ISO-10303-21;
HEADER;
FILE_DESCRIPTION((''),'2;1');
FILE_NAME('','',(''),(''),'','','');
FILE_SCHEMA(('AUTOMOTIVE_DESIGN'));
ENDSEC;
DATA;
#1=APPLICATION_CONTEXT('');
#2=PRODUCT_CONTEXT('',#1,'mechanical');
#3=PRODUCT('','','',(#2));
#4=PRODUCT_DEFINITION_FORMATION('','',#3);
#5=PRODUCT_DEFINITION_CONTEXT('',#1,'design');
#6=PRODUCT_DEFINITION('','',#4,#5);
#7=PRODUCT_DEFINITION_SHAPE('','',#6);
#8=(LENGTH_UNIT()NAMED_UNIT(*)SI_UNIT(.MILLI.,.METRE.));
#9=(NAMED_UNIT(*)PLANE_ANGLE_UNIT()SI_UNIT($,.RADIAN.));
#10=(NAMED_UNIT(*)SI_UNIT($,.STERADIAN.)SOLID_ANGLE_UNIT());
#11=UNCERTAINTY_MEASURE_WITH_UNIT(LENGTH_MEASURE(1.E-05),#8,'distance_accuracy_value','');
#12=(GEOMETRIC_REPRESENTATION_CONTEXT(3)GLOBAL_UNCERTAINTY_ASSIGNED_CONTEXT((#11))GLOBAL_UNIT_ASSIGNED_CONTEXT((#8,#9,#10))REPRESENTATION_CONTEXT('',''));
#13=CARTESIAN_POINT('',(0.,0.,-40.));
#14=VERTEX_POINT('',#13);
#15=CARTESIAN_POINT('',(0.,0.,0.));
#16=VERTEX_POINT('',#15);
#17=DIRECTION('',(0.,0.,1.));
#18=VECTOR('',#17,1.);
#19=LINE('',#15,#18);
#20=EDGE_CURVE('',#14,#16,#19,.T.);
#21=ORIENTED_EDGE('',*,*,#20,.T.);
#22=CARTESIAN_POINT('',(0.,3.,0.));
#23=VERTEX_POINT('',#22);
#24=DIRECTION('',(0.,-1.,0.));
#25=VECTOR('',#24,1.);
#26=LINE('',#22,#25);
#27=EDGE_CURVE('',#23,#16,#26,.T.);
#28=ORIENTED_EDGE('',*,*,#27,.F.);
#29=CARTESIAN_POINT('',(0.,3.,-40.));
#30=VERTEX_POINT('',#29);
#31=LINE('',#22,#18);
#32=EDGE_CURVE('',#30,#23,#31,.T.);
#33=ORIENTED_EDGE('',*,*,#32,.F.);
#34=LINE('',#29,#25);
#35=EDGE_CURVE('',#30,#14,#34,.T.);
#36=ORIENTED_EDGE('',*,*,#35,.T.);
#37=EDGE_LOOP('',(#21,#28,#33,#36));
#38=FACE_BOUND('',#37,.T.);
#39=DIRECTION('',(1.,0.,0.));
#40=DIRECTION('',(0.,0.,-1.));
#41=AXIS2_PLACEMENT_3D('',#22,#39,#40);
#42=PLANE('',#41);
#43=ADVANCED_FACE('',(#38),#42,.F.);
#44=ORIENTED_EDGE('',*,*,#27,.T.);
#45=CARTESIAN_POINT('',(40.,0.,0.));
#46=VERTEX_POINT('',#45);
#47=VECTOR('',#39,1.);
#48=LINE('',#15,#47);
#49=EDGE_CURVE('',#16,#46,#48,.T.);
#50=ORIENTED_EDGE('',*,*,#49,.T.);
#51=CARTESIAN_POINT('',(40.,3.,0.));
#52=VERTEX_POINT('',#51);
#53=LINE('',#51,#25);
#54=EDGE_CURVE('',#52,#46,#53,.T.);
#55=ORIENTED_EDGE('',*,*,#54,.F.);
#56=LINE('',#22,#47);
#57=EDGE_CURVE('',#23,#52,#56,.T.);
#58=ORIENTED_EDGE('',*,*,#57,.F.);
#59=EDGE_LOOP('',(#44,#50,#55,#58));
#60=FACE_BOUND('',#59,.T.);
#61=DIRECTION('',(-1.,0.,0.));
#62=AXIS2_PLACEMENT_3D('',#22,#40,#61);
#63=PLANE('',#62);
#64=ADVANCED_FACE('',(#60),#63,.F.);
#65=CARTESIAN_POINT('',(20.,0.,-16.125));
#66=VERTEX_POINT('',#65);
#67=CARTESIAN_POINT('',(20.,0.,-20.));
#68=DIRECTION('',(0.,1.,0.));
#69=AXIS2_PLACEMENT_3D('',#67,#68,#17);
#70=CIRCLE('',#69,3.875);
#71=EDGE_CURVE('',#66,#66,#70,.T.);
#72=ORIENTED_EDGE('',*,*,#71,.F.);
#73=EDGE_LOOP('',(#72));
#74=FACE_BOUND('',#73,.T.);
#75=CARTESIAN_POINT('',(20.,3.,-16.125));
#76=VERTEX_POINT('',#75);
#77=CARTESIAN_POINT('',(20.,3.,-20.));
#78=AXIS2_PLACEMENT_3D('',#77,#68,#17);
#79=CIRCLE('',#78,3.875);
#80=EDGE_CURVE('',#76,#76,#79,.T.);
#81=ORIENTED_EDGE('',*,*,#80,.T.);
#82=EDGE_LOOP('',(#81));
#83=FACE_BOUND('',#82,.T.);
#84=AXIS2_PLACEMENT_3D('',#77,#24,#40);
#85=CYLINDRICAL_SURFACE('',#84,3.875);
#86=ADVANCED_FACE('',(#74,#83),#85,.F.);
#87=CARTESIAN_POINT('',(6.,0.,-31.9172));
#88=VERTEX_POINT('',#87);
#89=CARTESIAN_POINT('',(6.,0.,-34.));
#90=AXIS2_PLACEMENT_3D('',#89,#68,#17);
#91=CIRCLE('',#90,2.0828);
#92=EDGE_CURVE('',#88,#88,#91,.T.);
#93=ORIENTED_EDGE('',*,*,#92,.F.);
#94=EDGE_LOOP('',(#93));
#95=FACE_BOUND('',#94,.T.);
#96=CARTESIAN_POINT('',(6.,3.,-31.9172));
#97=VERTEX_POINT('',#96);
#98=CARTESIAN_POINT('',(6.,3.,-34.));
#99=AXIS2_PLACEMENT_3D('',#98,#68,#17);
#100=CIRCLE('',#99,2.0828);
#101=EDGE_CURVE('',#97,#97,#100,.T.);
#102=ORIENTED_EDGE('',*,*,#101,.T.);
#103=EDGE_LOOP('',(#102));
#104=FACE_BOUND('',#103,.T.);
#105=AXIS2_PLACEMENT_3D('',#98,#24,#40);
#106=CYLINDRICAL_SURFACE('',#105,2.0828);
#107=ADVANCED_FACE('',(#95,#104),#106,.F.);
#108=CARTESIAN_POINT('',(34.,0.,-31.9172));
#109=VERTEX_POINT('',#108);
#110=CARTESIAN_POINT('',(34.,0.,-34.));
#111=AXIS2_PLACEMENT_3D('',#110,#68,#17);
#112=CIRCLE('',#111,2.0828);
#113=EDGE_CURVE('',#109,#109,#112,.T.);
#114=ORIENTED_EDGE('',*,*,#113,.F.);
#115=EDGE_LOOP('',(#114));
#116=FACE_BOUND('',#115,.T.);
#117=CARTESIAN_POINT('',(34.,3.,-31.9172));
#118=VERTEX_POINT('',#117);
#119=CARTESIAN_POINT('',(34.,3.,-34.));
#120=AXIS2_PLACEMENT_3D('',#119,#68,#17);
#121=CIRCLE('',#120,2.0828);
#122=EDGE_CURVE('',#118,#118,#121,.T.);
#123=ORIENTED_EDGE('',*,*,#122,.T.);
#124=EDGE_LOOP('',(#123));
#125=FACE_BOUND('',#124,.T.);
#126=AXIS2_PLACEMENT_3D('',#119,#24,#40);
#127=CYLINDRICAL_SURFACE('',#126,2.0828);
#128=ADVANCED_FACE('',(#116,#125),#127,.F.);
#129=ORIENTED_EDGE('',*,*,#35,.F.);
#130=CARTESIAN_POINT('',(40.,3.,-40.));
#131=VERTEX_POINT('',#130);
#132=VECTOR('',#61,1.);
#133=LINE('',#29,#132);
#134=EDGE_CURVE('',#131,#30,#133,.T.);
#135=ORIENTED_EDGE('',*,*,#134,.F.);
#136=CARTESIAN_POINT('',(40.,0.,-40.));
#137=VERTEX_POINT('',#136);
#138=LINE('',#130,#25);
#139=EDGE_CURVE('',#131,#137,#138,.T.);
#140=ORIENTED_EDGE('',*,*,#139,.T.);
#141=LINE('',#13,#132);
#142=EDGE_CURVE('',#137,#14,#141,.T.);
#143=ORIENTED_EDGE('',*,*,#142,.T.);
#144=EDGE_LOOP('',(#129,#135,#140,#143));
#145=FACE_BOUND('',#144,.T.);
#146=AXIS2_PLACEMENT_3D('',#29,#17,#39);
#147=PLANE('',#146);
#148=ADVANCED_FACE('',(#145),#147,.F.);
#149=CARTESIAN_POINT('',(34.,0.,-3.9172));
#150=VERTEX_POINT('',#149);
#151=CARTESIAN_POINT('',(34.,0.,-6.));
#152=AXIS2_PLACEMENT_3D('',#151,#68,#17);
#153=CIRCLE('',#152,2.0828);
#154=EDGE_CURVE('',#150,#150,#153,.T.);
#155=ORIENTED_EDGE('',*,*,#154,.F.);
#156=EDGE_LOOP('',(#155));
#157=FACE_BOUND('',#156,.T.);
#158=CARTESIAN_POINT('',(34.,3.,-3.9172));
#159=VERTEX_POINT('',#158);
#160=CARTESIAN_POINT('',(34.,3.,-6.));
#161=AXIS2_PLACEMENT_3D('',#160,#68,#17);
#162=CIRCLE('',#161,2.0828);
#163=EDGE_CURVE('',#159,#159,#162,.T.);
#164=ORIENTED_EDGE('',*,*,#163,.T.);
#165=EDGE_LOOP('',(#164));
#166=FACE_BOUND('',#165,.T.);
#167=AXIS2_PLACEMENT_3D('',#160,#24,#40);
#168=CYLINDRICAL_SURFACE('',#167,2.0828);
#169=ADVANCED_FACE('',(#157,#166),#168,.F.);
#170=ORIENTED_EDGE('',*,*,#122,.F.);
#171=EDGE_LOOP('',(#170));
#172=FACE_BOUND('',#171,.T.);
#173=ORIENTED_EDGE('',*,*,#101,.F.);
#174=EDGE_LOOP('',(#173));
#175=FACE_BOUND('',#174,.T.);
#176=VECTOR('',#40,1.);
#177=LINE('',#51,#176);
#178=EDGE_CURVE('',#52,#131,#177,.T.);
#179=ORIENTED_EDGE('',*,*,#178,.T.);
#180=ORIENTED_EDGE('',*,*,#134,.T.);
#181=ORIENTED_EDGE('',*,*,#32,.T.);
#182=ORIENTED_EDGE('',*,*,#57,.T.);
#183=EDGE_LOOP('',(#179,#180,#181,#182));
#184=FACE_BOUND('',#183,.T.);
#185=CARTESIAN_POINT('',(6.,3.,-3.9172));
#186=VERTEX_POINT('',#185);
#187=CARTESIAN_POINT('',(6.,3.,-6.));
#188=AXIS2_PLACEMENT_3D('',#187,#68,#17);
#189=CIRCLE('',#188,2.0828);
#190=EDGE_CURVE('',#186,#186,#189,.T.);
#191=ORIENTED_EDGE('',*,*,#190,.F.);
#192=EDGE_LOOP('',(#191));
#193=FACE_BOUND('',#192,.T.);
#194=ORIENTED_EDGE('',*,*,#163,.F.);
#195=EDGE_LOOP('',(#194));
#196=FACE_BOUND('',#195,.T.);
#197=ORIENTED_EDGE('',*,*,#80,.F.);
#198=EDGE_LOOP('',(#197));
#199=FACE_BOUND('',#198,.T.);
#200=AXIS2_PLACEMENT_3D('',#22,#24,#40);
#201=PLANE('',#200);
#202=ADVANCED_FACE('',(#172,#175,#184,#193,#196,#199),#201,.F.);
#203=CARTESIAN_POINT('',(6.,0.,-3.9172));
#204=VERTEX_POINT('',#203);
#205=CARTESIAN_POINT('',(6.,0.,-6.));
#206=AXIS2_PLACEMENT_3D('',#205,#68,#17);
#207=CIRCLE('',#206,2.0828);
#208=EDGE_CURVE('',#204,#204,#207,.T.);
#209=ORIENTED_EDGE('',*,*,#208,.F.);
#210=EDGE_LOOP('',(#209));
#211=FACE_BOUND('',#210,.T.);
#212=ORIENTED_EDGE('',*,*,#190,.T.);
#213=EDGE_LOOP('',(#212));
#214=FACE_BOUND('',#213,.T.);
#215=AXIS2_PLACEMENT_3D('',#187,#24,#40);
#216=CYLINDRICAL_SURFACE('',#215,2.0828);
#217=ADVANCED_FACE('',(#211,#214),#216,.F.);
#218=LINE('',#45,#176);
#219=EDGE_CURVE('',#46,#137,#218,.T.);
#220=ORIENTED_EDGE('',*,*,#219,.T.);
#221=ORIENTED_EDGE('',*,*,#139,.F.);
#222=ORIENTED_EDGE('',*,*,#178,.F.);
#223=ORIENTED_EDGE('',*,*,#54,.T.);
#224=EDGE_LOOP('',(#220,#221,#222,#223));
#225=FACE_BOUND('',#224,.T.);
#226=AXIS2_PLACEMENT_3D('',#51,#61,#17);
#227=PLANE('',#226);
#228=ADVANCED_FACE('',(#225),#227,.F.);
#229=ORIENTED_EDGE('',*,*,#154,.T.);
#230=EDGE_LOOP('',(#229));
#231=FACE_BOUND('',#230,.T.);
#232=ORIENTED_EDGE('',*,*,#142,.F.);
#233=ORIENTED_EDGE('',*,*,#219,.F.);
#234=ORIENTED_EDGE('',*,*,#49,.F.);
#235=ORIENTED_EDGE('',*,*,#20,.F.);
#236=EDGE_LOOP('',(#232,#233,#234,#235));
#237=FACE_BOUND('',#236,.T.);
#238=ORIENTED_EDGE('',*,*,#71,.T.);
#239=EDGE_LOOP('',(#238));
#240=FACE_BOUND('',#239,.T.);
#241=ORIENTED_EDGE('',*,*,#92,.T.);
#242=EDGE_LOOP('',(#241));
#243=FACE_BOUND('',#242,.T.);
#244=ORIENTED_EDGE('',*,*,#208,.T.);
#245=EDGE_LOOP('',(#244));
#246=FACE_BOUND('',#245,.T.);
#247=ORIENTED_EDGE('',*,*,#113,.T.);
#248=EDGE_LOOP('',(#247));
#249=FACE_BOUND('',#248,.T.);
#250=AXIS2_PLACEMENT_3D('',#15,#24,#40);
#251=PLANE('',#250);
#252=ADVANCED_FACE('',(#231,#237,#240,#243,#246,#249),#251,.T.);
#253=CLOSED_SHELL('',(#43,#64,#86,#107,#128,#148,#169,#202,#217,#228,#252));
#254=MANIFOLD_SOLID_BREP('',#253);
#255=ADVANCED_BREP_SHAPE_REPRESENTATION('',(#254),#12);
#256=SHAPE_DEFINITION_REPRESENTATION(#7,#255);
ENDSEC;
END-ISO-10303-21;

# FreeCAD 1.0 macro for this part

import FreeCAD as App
import Part
import Sketcher

V = App.Vector
Q = App.Units.Quantity

doc = App.newDocument("Part")
body = doc.addObject("PartDesign::Body", "Body")

sketch1 = body.newObject("Sketcher::SketchObject", "Sketch")
sketch1.AttachmentSupport = (doc.getObject("XZ_Plane"), [""])
sketch1.MapMode = "FlatFace"
sketch1.addGeometry([
    Part.LineSegment(V(0, -40, 0), V(0, 0, 0)),
    Part.LineSegment(V(0, 0, 0), V(40, 0, 0)),
    Part.LineSegment(V(40, 0, 0), V(40, -40, 0)),
    Part.LineSegment(V(40, -40, 0), V(0, -40, 0)),
    Part.Circle(V(6, -6, 0), V(0, 0, 1), 2.1),
    Part.Circle(V(34, -6, 0), V(0, 0, 1), 2.1),
    Part.Circle(V(6, -34, 0), V(0, 0, 1), 2.1),
    Part.Circle(V(20, -20, 0), V(0, 0, 1), 3.9),
    Part.Circle(V(34, -34, 0), V(0, 0, 1), 2.1),
], False)
sketch1.addConstraint([
    Sketcher.Constraint("Coincident", 0, 2, 1, 1),
    Sketcher.Constraint("Coincident", 1, 2, 2, 1),
    Sketcher.Constraint("Coincident", 2, 2, 3, 1),
    Sketcher.Constraint("Coincident", 3, 2, 0, 1),
    Sketcher.Constraint("Vertical", 0),
    Sketcher.Constraint("Horizontal", 1),
    Sketcher.Constraint("Vertical", 2),
    Sketcher.Constraint("Horizontal", 3),
    Sketcher.Constraint("Coincident", 0, 2, -1, 1),
    Sketcher.Constraint("Equal", 4, 5),
    Sketcher.Constraint("Equal", 5, 6),
    Sketcher.Constraint("Equal", 6, 8),
    Sketcher.Constraint("Horizontal", 4, 3, 5, 3),
    Sketcher.Constraint("Horizontal", 6, 3, 8, 3),
    Sketcher.Constraint("Vertical", 4, 3, 6, 3),
    Sketcher.Constraint("Vertical", 5, 3, 8, 3),
    Sketcher.Constraint("Equal", 3, 0),
    Sketcher.Constraint("Diameter", 7, Q("7.75 mm")),
    Sketcher.Constraint("DistanceX", 1, 1, 1, 2, Q("40 mm")),
    Sketcher.Constraint("DistanceX", -1, 1, 4, 3, Q("6 mm")),
    Sketcher.Constraint("DistanceY", 4, 3, -1, 1, Q("6 mm")),
    Sketcher.Constraint("DistanceX", -1, 1, 5, 3, Q("34 mm")),
    Sketcher.Constraint("DistanceY", 6, 3, -1, 1, Q("34 mm")),
    Sketcher.Constraint("DistanceX", -1, 1, 7, 3, Q("20 mm")),
    Sketcher.Constraint("DistanceY", 7, 3, -1, 1, Q("20 mm")),
    Sketcher.Constraint("Diameter", 4, Q("4.1656 mm")),
])
pad1 = body.newObject("PartDesign::Pad", "Pad")
pad1.Profile = sketch1
pad1.Length = 3
pad1.Reversed = True

doc.recompute()
